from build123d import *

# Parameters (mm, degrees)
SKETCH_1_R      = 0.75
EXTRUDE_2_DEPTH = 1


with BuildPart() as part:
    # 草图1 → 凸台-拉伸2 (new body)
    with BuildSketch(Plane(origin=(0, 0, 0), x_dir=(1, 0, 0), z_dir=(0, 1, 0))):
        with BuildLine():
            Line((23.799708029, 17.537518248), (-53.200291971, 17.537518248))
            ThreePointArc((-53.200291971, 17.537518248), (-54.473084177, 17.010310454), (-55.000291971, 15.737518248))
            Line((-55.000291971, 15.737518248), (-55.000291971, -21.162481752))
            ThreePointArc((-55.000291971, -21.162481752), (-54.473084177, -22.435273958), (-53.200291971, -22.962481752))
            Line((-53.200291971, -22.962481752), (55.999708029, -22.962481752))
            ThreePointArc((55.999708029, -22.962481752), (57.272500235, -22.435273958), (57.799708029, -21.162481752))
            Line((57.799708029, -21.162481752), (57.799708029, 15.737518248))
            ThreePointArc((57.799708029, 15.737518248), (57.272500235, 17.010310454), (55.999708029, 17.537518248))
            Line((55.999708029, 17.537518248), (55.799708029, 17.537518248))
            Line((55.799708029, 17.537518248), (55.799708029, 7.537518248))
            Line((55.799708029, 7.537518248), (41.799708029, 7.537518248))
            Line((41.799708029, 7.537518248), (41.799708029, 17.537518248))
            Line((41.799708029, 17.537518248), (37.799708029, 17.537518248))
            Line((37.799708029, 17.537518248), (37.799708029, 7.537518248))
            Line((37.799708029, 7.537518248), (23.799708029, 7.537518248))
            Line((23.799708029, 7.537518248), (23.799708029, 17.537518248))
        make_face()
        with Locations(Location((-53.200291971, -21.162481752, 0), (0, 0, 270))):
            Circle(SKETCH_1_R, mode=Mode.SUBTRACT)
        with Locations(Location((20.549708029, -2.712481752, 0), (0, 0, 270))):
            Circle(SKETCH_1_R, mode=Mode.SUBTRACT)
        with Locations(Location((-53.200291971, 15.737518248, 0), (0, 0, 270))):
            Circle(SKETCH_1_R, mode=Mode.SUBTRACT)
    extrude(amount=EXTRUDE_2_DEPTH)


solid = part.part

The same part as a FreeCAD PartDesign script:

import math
import FreeCAD as App
import Part
import Sketcher

V = App.Vector

doc = App.newDocument("Part")
params = doc.addObject("Spreadsheet::Sheet", "Params")
for row, (alias, value) in enumerate([
    ("sketch1_diameter", "1.5 mm"),
    ("sketch1_radius", "1.8 mm"),
    ("sketch1_width", "77 mm"),
    ("sketch1_width2", "14 mm"),
    ("sketch1_width3", "4 mm"),
    ("pad1_length", "1 mm"),
], start=1):
    params.set(f"A{row}", alias)
    params.set(f"B{row}", "=" + value)
    params.setAlias(f"B{row}", alias)

body = doc.addObject("PartDesign::Body", "Body")

sketch1 = body.newObject("Sketcher::SketchObject", "Sketch")
sketch1.AttachmentSupport = (doc.getObject("XZ_Plane"), [""])
sketch1.MapMode = "FlatFace"
sketch1.addGeometry(Part.LineSegment(V(23.8, -17.54, 0), V(-53.2, -17.54, 0)), False)
sketch1.addGeometry(Part.ArcOfCircle(Part.Circle(V(-53.2, -15.74, 0), V(0, 0, 1), 1.8), math.radians(180), math.radians(270)), False)
sketch1.addGeometry(Part.LineSegment(V(-55, -15.74, 0), V(-55, 21.16, 0)), False)
sketch1.addGeometry(Part.ArcOfCircle(Part.Circle(V(-53.2, 21.16, 0), V(0, 0, 1), 1.8), math.radians(90), math.radians(180)), False)
sketch1.addGeometry(Part.LineSegment(V(-53.2, 22.96, 0), V(56, 22.96, 0)), False)
sketch1.addGeometry(Part.ArcOfCircle(Part.Circle(V(56, 21.16, 0), V(0, 0, 1), 1.8), math.radians(0), math.radians(90)), False)
sketch1.addGeometry(Part.LineSegment(V(57.8, 21.16, 0), V(57.8, -15.74, 0)), False)
sketch1.addGeometry(Part.ArcOfCircle(Part.Circle(V(56, -15.74, 0), V(0, 0, 1), 1.8), math.radians(-90), math.radians(0)), False)
sketch1.addGeometry(Part.LineSegment(V(56, -17.54, 0), V(55.8, -17.54, 0)), False)
sketch1.addGeometry(Part.LineSegment(V(55.8, -17.54, 0), V(55.8, -7.54, 0)), False)
sketch1.addGeometry(Part.LineSegment(V(55.8, -7.54, 0), V(41.8, -7.54, 0)), False)
sketch1.addGeometry(Part.LineSegment(V(41.8, -7.54, 0), V(41.8, -17.54, 0)), False)
sketch1.addGeometry(Part.LineSegment(V(41.8, -17.54, 0), V(37.8, -17.54, 0)), False)
sketch1.addGeometry(Part.LineSegment(V(37.8, -17.54, 0), V(37.8, -7.54, 0)), False)
sketch1.addGeometry(Part.LineSegment(V(37.8, -7.54, 0), V(23.8, -7.54, 0)), False)
sketch1.addGeometry(Part.LineSegment(V(23.8, -7.54, 0), V(23.8, -17.54, 0)), False)
sketch1.addGeometry(Part.Circle(V(-53.2, 21.16, 0), V(0, 0, 1), 0.75), False)
sketch1.addGeometry(Part.Circle(V(-53.2, -15.74, 0), V(0, 0, 1), 0.75), False)
sketch1.addGeometry(Part.Circle(V(20.55, 2.71, 0), V(0, 0, 1), 0.75), False)
sketch1.addConstraint(Sketcher.Constraint("Tangent", 0, 2, 1, 2))
sketch1.addConstraint(Sketcher.Constraint("Tangent", 1, 1, 2, 1))
sketch1.addConstraint(Sketcher.Constraint("Tangent", 2, 2, 3, 2))
sketch1.addConstraint(Sketcher.Constraint("Tangent", 3, 1, 4, 1))
sketch1.addConstraint(Sketcher.Constraint("Tangent", 4, 2, 5, 2))
sketch1.addConstraint(Sketcher.Constraint("Tangent", 5, 1, 6, 1))
sketch1.addConstraint(Sketcher.Constraint("Tangent", 6, 2, 7, 2))
sketch1.addConstraint(Sketcher.Constraint("Tangent", 7, 1, 8, 1))
sketch1.addConstraint(Sketcher.Constraint("Coincident", 8, 2, 9, 1))
sketch1.addConstraint(Sketcher.Constraint("Coincident", 9, 2, 10, 1))
sketch1.addConstraint(Sketcher.Constraint("Coincident", 10, 2, 11, 1))
sketch1.addConstraint(Sketcher.Constraint("Coincident", 11, 2, 12, 1))
sketch1.addConstraint(Sketcher.Constraint("Coincident", 12, 2, 13, 1))
sketch1.addConstraint(Sketcher.Constraint("Coincident", 13, 2, 14, 1))
sketch1.addConstraint(Sketcher.Constraint("Coincident", 14, 2, 15, 1))
sketch1.addConstraint(Sketcher.Constraint("Coincident", 15, 2, 0, 1))
sketch1.addConstraint(Sketcher.Constraint("Horizontal", 0))
sketch1.addConstraint(Sketcher.Constraint("Vertical", 2))
sketch1.addConstraint(Sketcher.Constraint("Horizontal", 4))
sketch1.addConstraint(Sketcher.Constraint("Vertical", 6))
sketch1.addConstraint(Sketcher.Constraint("Horizontal", 8))
sketch1.addConstraint(Sketcher.Constraint("Vertical", 9))
sketch1.addConstraint(Sketcher.Constraint("Horizontal", 10))
sketch1.addConstraint(Sketcher.Constraint("Vertical", 11))
sketch1.addConstraint(Sketcher.Constraint("Horizontal", 12))
sketch1.addConstraint(Sketcher.Constraint("Vertical", 13))
sketch1.addConstraint(Sketcher.Constraint("Horizontal", 14))
sketch1.addConstraint(Sketcher.Constraint("Vertical", 15))
sketch1.addConstraint(Sketcher.Constraint("Coincident", 16, 3, 3, 3))
sketch1.addConstraint(Sketcher.Constraint("Coincident", 17, 3, 1, 3))
sketch1.addConstraint(Sketcher.Constraint("Equal", 1, 3))
sketch1.addConstraint(Sketcher.Constraint("Equal", 3, 5))
sketch1.addConstraint(Sketcher.Constraint("Equal", 5, 7))
sketch1.addConstraint(Sketcher.Constraint("Equal", 16, 17))
sketch1.addConstraint(Sketcher.Constraint("Equal", 17, 18))
sketch1.addConstraint(Sketcher.Constraint("Horizontal", 1, 3, 7, 3))
sketch1.addConstraint(Sketcher.Constraint("Horizontal", 8, 2, 11, 2))
sketch1.addConstraint(Sketcher.Constraint("Horizontal", 10, 2, 13, 2))
sketch1.addConstraint(Sketcher.Constraint("Equal", 10, 14))
sketch1.addConstraint(Sketcher.Constraint("Diameter", 16, 1.5))
sketch1.addConstraint(Sketcher.Constraint("Radius", 1, 1.8))
sketch1.addConstraint(Sketcher.Constraint("DistanceX", 0, 2, 0, 1, 77.0))
sketch1.addConstraint(Sketcher.Constraint("DistanceX", 10, 2, 10, 1, 14.0))
sketch1.addConstraint(Sketcher.Constraint("DistanceX", 12, 2, 12, 1, 4.0))
sketch1.addConstraint(Sketcher.Constraint("DistanceY", 9, 1, 9, 2, 10.0))
sketch1.addConstraint(Sketcher.Constraint("DistanceX", 4, 1, 4, 2, 109.2))
sketch1.addConstraint(Sketcher.Constraint("DistanceY", 2, 1, 2, 2, 36.9))
sketch1.addConstraint(Sketcher.Constraint("DistanceX", 18, 3, 7, 3, 35.45))
sketch1.addConstraint(Sketcher.Constraint("DistanceY", 7, 3, 18, 3, 18.45))
sketch1.addConstraint(Sketcher.Constraint("DistanceX", 1, 3, -1, 1, 53.200292))
sketch1.addConstraint(Sketcher.Constraint("DistanceY", 1, 3, -1, 1, 15.737518))
sketch1.setExpression("Constraints[39]", "Params.sketch1_diameter")
sketch1.setExpression("Constraints[40]", "Params.sketch1_radius")
sketch1.setExpression("Constraints[41]", "Params.sketch1_width")
sketch1.setExpression("Constraints[42]", "Params.sketch1_width2")
sketch1.setExpression("Constraints[43]", "Params.sketch1_width3")
pad1 = body.newObject("PartDesign::Pad", "Pad")
pad1.Profile = sketch1
pad1.setExpression("Length", "Params.pad1_length")
pad1.Reversed = True

doc.recompute()
